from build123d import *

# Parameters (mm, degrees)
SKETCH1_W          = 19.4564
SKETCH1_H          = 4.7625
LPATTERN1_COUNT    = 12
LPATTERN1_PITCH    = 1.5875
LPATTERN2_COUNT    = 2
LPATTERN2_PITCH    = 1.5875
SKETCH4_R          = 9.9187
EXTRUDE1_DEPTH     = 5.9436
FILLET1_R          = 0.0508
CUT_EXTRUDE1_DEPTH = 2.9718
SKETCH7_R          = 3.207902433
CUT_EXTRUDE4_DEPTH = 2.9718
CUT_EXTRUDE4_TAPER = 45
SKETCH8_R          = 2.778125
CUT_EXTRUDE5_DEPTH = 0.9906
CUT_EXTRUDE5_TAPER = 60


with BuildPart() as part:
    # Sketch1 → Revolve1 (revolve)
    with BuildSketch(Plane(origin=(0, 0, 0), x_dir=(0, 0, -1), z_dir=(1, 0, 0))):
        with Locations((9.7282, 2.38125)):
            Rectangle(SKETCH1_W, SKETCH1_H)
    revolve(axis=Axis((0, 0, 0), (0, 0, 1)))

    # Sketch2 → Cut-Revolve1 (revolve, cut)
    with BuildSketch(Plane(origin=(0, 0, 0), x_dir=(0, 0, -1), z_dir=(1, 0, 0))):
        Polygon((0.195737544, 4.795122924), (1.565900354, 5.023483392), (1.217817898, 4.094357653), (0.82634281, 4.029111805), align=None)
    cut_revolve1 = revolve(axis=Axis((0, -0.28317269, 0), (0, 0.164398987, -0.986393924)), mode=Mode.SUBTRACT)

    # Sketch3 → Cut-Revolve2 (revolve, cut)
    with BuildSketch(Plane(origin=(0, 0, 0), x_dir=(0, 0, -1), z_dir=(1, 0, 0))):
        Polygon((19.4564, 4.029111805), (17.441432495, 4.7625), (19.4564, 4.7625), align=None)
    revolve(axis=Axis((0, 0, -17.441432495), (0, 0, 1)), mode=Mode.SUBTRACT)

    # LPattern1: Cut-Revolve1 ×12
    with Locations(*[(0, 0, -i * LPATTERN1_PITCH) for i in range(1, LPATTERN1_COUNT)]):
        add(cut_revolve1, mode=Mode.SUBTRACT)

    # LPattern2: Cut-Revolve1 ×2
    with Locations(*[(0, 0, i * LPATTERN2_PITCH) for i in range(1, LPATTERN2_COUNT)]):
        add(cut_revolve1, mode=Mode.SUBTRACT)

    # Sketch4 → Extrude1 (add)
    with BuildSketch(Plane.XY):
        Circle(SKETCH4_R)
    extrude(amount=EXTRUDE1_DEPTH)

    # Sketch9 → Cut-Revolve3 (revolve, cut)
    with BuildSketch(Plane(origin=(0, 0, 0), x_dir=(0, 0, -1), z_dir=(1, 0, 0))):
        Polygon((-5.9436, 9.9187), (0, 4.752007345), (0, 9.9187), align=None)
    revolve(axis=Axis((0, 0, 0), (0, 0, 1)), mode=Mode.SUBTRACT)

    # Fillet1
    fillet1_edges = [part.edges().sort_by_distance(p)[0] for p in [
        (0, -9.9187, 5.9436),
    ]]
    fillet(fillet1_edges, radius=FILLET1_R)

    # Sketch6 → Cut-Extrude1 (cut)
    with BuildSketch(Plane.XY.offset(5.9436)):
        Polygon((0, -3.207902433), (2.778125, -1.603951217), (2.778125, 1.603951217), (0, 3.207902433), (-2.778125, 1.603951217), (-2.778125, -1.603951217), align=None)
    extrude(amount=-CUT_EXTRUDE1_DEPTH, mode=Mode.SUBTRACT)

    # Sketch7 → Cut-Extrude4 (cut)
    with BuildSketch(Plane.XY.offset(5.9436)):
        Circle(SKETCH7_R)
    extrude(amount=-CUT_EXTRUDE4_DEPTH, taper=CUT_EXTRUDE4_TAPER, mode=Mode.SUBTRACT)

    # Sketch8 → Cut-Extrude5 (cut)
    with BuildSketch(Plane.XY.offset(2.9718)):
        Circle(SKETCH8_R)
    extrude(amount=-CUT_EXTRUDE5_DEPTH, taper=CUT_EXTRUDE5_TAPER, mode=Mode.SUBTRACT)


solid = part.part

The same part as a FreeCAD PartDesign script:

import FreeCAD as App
import Part
import Sketcher

V = App.Vector
Q = App.Units.Quantity


def edges_at(feature, points):
    """Names of the edges that pass closest to the given points."""
    edges = feature.Shape.Edges
    near = lambda p: min(range(len(edges)), key=lambda i: edges[i].distToShape(Part.Vertex(*p))[0])
    return sorted({f"Edge{near(p) + 1}" for p in points})

doc = App.newDocument("Part")
body = doc.addObject("PartDesign::Body", "Body")

# Sketch on YZ plane
sketch1 = body.newObject("Sketcher::SketchObject", "Sketch")
sketch1.AttachmentSupport = (doc.getObject("YZ_Plane"), [""])
sketch1.MapMode = "FlatFace"
sketch1.addGeometry([
    Part.LineSegment(V(4.7625, 0, 0), V(0, 0, 0)),
    Part.LineSegment(V(0, 0, 0), V(0, -19.4564, 0)),
    Part.LineSegment(V(0, -19.4564, 0), V(4.7625, -19.4564, 0)),
    Part.LineSegment(V(4.7625, -19.4564, 0), V(4.7625, 0, 0)),
], False)
sketch1.addConstraint([
    Sketcher.Constraint("Coincident", 0, 2, 1, 1),
    Sketcher.Constraint("Coincident", 1, 2, 2, 1),
    Sketcher.Constraint("Coincident", 2, 2, 3, 1),
    Sketcher.Constraint("Coincident", 3, 2, 0, 1),
    Sketcher.Constraint("Horizontal", 0),
    Sketcher.Constraint("Vertical", 1),
    Sketcher.Constraint("Horizontal", 2),
    Sketcher.Constraint("Vertical", 3),
    Sketcher.Constraint("Coincident", 0, 2, -1, 1),
    Sketcher.Constraint("DistanceX", 0, 2, 0, 1, Q("0.1875 in")),
    Sketcher.Constraint("DistanceY", 1, 2, 1, 1, Q("0.766 in")),
])
revolution = body.newObject("PartDesign::Revolution", "Revolution")
revolution.Profile = sketch1
revolution.ReferenceAxis = (sketch1, ["V_Axis"])
revolution.Angle = 360

# Sketch on YZ plane
sketch2 = body.newObject("Sketcher::SketchObject", "Sketch001")
sketch2.AttachmentSupport = (doc.getObject("YZ_Plane"), [""])
sketch2.MapMode = "FlatFace"
sketch2.addGeometry([
    Part.LineSegment(V(5.023483, -1.5659, 0), V(4.795123, -0.195738, 0)),
    Part.LineSegment(V(4.795123, -0.195738, 0), V(4.029112, -0.826343, 0)),
    Part.LineSegment(V(4.029112, -0.826343, 0), V(4.094358, -1.217818, 0)),
    Part.LineSegment(V(4.094358, -1.217818, 0), V(5.023483, -1.5659, 0)),
], False)
sketch2.addGeometry(Part.LineSegment(V(-0.11418, -1.013955, 0), V(0.11418, -2.384118, 0)), True)  # axis
sketch2.addConstraint([
    Sketcher.Constraint("Coincident", 0, 2, 1, 1),
    Sketcher.Constraint("Coincident", 1, 2, 2, 1),
    Sketcher.Constraint("Coincident", 2, 2, 3, 1),
    Sketcher.Constraint("Coincident", 3, 2, 0, 1),
    Sketcher.Constraint("Parallel", 0, 2),
    Sketcher.Constraint("Parallel", 2, 4),
    Sketcher.Constraint("Equal", 1, 3),
    Sketcher.Constraint("Equal", 0, 4),
    Sketcher.Constraint("Distance", 2, Q("0.015625 in")),
    Sketcher.Constraint("DistanceX", 4, 2, 2, 2, Q("0.1566999 in")),
    Sketcher.Constraint("DistanceY", 3, 2, -1, 1, Q("1.5659 mm")),
    Sketcher.Constraint("DistanceY", 4, 2, 2, 2, Q("1.1663 mm")),
    Sketcher.Constraint("DistanceX", -1, 1, 1, 2, Q("4.029112 mm")),
    Sketcher.Constraint("DistanceX", 4, 1, -1, 1, Q("0.11418 mm")),
    Sketcher.Constraint("DistanceX", -1, 1, 4, 2, Q("0.11418 mm")),
    Sketcher.Constraint("DistanceX", 1, 2, 0, 2, Q("0.766011 mm")),
])
groove = body.newObject("PartDesign::Groove", "Groove")
groove.Profile = sketch2
groove.ReferenceAxis = (sketch2, ["Axis0"])
groove.Angle = 360

# Sketch on YZ plane
sketch3 = body.newObject("Sketcher::SketchObject", "Sketch002")
sketch3.AttachmentSupport = (doc.getObject("YZ_Plane"), [""])
sketch3.MapMode = "FlatFace"
sketch3.addGeometry([
    Part.LineSegment(V(4.7625, -17.441432, 0), V(4.029112, -19.4564, 0)),
    Part.LineSegment(V(4.029112, -19.4564, 0), V(4.7625, -19.4564, 0)),
    Part.LineSegment(V(4.7625, -19.4564, 0), V(4.7625, -17.441432, 0)),
], False)
sketch3.addConstraint([
    Sketcher.Constraint("Coincident", 0, 2, 1, 1),
    Sketcher.Constraint("Coincident", 1, 2, 2, 1),
    Sketcher.Constraint("Coincident", 2, 2, 0, 1),
    Sketcher.Constraint("Horizontal", 1),
    Sketcher.Constraint("Vertical", 2),
    Sketcher.Constraint("Angle", 0, Q("-110 deg")),
    Sketcher.Constraint("DistanceY", 0, 2, -1, 1, Q("0.766 in")),
    Sketcher.Constraint("DistanceX", -1, 1, 1, 2, Q("0.1875 in")),
    Sketcher.Constraint("DistanceX", 1, 1, 1, 2, Q("0.733388 mm")),
])
groove2 = body.newObject("PartDesign::Groove", "Groove001")
groove2.Profile = sketch3
groove2.ReferenceAxis = (sketch3, ["V_Axis"])
groove2.Angle = 360
doc.recompute()

linearpattern = body.newObject("PartDesign::LinearPattern", "LinearPattern")
linearpattern.Originals = [groove]
linearpattern.Direction = (doc.getObject("Z_Axis"), [""])
linearpattern.Mode = "offset"
linearpattern.Offset = Q("0.0625 in")
linearpattern.Occurrences = 12
linearpattern.Reversed = True
body.Tip = linearpattern
doc.recompute()

linearpattern2 = body.newObject("PartDesign::LinearPattern", "LinearPattern001")
linearpattern2.Originals = [groove]
linearpattern2.Direction = (doc.getObject("Z_Axis"), [""])
linearpattern2.Mode = "offset"
linearpattern2.Offset = Q("0.0625 in")
linearpattern2.Occurrences = 2
body.Tip = linearpattern2

# Sketch on XY plane
sketch4 = body.newObject("Sketcher::SketchObject", "Sketch003")
sketch4.AttachmentSupport = (doc.getObject("XY_Plane"), [""])
sketch4.MapMode = "FlatFace"
sketch4.addGeometry(Part.Circle(V(0, 0, 0), V(0, 0, 1), 9.9187), False)
sketch4.addConstraint([
    Sketcher.Constraint("Coincident", 0, 3, -1, 1),
    Sketcher.Constraint("Diameter", 0, Q("0.781 in")),
])
pad1 = body.newObject("PartDesign::Pad", "Pad")
pad1.Profile = sketch4
pad1.Length = Q("0.234 in")

# Sketch on YZ plane
sketch5 = body.newObject("Sketcher::SketchObject", "Sketch004")
sketch5.AttachmentSupport = (doc.getObject("YZ_Plane"), [""])
sketch5.MapMode = "FlatFace"
sketch5.addGeometry([
    Part.LineSegment(V(9.9187, 5.9436, 0), V(4.752007, 0, 0)),
    Part.LineSegment(V(4.752007, 0, 0), V(9.9187, 0, 0)),
    Part.LineSegment(V(9.9187, 0, 0), V(9.9187, 5.9436, 0)),
], False)
sketch5.addConstraint([
    Sketcher.Constraint("Coincident", 0, 2, 1, 1),
    Sketcher.Constraint("Coincident", 1, 2, 2, 1),
    Sketcher.Constraint("Coincident", 2, 2, 0, 1),
    Sketcher.Constraint("Horizontal", 1),
    Sketcher.Constraint("Vertical", 2),
    Sketcher.Constraint("PointOnObject", 0, 2, -1),
    Sketcher.Constraint("Angle", 0, Q("-131 deg")),
    Sketcher.Constraint("DistanceY", 2, 1, 2, 2, Q("0.234 in")),
    Sketcher.Constraint("DistanceX", -1, 1, 1, 2, Q("0.3905 in")),
])
groove3 = body.newObject("PartDesign::Groove", "Groove002")
groove3.Profile = sketch5
groove3.ReferenceAxis = (sketch5, ["V_Axis"])
groove3.Angle = 360
doc.recompute()

fillet = body.newObject("PartDesign::Fillet", "Fillet")
fillet.Base = (groove3, edges_at(groove3, [(0, -9.919, 5.944)]))
fillet.Radius = Q("0.002 in")

# Sketch on XY plane
sketch6 = body.newObject("Sketcher::SketchObject", "Sketch005")
sketch6.AttachmentSupport = (doc.getObject("XY_Plane"), [""])
sketch6.MapMode = "FlatFace"
sketch6.AttachmentOffset = App.Placement(V(0, 0, 0.234 * 25.4), App.Rotation())
sketch6.addGeometry([
    Part.LineSegment(V(0, -3.207902, 0), V(2.778125, -1.603951, 0)),  # 0
    Part.LineSegment(V(2.778125, -1.603951, 0), V(2.778125, 1.603951, 0)),  # 1
    Part.LineSegment(V(2.778125, 1.603951, 0), V(0, 3.207902, 0)),  # 2
    Part.LineSegment(V(0, 3.207902, 0), V(-2.778125, 1.603951, 0)),  # 3
    Part.LineSegment(V(-2.778125, 1.603951, 0), V(-2.778125, -1.603951, 0)),  # 4
    Part.LineSegment(V(-2.778125, -1.603951, 0), V(0, -3.207902, 0)),  # 5
], False)
sketch6.addConstraint([
    Sketcher.Constraint("Coincident", 0, 2, 1, 1),
    Sketcher.Constraint("Coincident", 1, 2, 2, 1),
    Sketcher.Constraint("Coincident", 2, 2, 3, 1),
    Sketcher.Constraint("Coincident", 3, 2, 4, 1),
    Sketcher.Constraint("Coincident", 4, 2, 5, 1),
    Sketcher.Constraint("Coincident", 5, 2, 0, 1),
    Sketcher.Constraint("Vertical", 1),
    Sketcher.Constraint("Vertical", 4),
    Sketcher.Constraint("Symmetric", 0, 2, 3, 2, -1, 1),
    Sketcher.Constraint("Symmetric", 2, 2, 5, 2, -1, 1),
    Sketcher.Constraint("PointOnObject", 2, 2, -2),
    Sketcher.Constraint("Parallel", 2, 5),
    Sketcher.Constraint("Horizontal", 1, 2, 3, 2),
    Sketcher.Constraint("Angle", 0, Q("30 deg")),
    Sketcher.Constraint("DistanceX", -1, 1, 0, 2, Q("0.109375 in")),
    Sketcher.Constraint("DistanceY", 1, 1, 1, 2, Q("3.207902 mm")),
])
pocket1 = body.newObject("PartDesign::Pocket", "Pocket")
pocket1.Profile = sketch6
pocket1.Length = Q("0.117 in")

# Sketch on XY plane
sketch7 = body.newObject("Sketcher::SketchObject", "Sketch006")
sketch7.AttachmentSupport = (doc.getObject("XY_Plane"), [""])
sketch7.MapMode = "FlatFace"
sketch7.AttachmentOffset = App.Placement(V(0, 0, 0.234 * 25.4), App.Rotation())
sketch7.addGeometry(Part.Circle(V(0, 0, 0), V(0, 0, 1), 3.207902), False)
sketch7.addConstraint([
    Sketcher.Constraint("Coincident", 0, 3, -1, 1),
    Sketcher.Constraint("Diameter", 0, Q("6.415805 mm")),
])
pocket2 = body.newObject("PartDesign::Pocket", "Pocket001")
pocket2.Profile = sketch7
pocket2.Length = Q("0.117 in")
pocket2.TaperAngle = -45

# Sketch on XY plane
sketch8 = body.newObject("Sketcher::SketchObject", "Sketch007")
sketch8.AttachmentSupport = (doc.getObject("XY_Plane"), [""])
sketch8.MapMode = "FlatFace"
sketch8.AttachmentOffset = App.Placement(V(0, 0, 0.117 * 25.4), App.Rotation())
sketch8.addGeometry(Part.Circle(V(0, 0, 0), V(0, 0, 1), 2.778125), False)
sketch8.addConstraint([
    Sketcher.Constraint("Coincident", 0, 3, -1, 1),
    Sketcher.Constraint("Diameter", 0, Q("0.21875 in")),
])
pocket3 = body.newObject("PartDesign::Pocket", "Pocket002")
pocket3.Profile = sketch8
pocket3.Length = Q("0.039 in")
pocket3.TaperAngle = -60

doc.recompute()
